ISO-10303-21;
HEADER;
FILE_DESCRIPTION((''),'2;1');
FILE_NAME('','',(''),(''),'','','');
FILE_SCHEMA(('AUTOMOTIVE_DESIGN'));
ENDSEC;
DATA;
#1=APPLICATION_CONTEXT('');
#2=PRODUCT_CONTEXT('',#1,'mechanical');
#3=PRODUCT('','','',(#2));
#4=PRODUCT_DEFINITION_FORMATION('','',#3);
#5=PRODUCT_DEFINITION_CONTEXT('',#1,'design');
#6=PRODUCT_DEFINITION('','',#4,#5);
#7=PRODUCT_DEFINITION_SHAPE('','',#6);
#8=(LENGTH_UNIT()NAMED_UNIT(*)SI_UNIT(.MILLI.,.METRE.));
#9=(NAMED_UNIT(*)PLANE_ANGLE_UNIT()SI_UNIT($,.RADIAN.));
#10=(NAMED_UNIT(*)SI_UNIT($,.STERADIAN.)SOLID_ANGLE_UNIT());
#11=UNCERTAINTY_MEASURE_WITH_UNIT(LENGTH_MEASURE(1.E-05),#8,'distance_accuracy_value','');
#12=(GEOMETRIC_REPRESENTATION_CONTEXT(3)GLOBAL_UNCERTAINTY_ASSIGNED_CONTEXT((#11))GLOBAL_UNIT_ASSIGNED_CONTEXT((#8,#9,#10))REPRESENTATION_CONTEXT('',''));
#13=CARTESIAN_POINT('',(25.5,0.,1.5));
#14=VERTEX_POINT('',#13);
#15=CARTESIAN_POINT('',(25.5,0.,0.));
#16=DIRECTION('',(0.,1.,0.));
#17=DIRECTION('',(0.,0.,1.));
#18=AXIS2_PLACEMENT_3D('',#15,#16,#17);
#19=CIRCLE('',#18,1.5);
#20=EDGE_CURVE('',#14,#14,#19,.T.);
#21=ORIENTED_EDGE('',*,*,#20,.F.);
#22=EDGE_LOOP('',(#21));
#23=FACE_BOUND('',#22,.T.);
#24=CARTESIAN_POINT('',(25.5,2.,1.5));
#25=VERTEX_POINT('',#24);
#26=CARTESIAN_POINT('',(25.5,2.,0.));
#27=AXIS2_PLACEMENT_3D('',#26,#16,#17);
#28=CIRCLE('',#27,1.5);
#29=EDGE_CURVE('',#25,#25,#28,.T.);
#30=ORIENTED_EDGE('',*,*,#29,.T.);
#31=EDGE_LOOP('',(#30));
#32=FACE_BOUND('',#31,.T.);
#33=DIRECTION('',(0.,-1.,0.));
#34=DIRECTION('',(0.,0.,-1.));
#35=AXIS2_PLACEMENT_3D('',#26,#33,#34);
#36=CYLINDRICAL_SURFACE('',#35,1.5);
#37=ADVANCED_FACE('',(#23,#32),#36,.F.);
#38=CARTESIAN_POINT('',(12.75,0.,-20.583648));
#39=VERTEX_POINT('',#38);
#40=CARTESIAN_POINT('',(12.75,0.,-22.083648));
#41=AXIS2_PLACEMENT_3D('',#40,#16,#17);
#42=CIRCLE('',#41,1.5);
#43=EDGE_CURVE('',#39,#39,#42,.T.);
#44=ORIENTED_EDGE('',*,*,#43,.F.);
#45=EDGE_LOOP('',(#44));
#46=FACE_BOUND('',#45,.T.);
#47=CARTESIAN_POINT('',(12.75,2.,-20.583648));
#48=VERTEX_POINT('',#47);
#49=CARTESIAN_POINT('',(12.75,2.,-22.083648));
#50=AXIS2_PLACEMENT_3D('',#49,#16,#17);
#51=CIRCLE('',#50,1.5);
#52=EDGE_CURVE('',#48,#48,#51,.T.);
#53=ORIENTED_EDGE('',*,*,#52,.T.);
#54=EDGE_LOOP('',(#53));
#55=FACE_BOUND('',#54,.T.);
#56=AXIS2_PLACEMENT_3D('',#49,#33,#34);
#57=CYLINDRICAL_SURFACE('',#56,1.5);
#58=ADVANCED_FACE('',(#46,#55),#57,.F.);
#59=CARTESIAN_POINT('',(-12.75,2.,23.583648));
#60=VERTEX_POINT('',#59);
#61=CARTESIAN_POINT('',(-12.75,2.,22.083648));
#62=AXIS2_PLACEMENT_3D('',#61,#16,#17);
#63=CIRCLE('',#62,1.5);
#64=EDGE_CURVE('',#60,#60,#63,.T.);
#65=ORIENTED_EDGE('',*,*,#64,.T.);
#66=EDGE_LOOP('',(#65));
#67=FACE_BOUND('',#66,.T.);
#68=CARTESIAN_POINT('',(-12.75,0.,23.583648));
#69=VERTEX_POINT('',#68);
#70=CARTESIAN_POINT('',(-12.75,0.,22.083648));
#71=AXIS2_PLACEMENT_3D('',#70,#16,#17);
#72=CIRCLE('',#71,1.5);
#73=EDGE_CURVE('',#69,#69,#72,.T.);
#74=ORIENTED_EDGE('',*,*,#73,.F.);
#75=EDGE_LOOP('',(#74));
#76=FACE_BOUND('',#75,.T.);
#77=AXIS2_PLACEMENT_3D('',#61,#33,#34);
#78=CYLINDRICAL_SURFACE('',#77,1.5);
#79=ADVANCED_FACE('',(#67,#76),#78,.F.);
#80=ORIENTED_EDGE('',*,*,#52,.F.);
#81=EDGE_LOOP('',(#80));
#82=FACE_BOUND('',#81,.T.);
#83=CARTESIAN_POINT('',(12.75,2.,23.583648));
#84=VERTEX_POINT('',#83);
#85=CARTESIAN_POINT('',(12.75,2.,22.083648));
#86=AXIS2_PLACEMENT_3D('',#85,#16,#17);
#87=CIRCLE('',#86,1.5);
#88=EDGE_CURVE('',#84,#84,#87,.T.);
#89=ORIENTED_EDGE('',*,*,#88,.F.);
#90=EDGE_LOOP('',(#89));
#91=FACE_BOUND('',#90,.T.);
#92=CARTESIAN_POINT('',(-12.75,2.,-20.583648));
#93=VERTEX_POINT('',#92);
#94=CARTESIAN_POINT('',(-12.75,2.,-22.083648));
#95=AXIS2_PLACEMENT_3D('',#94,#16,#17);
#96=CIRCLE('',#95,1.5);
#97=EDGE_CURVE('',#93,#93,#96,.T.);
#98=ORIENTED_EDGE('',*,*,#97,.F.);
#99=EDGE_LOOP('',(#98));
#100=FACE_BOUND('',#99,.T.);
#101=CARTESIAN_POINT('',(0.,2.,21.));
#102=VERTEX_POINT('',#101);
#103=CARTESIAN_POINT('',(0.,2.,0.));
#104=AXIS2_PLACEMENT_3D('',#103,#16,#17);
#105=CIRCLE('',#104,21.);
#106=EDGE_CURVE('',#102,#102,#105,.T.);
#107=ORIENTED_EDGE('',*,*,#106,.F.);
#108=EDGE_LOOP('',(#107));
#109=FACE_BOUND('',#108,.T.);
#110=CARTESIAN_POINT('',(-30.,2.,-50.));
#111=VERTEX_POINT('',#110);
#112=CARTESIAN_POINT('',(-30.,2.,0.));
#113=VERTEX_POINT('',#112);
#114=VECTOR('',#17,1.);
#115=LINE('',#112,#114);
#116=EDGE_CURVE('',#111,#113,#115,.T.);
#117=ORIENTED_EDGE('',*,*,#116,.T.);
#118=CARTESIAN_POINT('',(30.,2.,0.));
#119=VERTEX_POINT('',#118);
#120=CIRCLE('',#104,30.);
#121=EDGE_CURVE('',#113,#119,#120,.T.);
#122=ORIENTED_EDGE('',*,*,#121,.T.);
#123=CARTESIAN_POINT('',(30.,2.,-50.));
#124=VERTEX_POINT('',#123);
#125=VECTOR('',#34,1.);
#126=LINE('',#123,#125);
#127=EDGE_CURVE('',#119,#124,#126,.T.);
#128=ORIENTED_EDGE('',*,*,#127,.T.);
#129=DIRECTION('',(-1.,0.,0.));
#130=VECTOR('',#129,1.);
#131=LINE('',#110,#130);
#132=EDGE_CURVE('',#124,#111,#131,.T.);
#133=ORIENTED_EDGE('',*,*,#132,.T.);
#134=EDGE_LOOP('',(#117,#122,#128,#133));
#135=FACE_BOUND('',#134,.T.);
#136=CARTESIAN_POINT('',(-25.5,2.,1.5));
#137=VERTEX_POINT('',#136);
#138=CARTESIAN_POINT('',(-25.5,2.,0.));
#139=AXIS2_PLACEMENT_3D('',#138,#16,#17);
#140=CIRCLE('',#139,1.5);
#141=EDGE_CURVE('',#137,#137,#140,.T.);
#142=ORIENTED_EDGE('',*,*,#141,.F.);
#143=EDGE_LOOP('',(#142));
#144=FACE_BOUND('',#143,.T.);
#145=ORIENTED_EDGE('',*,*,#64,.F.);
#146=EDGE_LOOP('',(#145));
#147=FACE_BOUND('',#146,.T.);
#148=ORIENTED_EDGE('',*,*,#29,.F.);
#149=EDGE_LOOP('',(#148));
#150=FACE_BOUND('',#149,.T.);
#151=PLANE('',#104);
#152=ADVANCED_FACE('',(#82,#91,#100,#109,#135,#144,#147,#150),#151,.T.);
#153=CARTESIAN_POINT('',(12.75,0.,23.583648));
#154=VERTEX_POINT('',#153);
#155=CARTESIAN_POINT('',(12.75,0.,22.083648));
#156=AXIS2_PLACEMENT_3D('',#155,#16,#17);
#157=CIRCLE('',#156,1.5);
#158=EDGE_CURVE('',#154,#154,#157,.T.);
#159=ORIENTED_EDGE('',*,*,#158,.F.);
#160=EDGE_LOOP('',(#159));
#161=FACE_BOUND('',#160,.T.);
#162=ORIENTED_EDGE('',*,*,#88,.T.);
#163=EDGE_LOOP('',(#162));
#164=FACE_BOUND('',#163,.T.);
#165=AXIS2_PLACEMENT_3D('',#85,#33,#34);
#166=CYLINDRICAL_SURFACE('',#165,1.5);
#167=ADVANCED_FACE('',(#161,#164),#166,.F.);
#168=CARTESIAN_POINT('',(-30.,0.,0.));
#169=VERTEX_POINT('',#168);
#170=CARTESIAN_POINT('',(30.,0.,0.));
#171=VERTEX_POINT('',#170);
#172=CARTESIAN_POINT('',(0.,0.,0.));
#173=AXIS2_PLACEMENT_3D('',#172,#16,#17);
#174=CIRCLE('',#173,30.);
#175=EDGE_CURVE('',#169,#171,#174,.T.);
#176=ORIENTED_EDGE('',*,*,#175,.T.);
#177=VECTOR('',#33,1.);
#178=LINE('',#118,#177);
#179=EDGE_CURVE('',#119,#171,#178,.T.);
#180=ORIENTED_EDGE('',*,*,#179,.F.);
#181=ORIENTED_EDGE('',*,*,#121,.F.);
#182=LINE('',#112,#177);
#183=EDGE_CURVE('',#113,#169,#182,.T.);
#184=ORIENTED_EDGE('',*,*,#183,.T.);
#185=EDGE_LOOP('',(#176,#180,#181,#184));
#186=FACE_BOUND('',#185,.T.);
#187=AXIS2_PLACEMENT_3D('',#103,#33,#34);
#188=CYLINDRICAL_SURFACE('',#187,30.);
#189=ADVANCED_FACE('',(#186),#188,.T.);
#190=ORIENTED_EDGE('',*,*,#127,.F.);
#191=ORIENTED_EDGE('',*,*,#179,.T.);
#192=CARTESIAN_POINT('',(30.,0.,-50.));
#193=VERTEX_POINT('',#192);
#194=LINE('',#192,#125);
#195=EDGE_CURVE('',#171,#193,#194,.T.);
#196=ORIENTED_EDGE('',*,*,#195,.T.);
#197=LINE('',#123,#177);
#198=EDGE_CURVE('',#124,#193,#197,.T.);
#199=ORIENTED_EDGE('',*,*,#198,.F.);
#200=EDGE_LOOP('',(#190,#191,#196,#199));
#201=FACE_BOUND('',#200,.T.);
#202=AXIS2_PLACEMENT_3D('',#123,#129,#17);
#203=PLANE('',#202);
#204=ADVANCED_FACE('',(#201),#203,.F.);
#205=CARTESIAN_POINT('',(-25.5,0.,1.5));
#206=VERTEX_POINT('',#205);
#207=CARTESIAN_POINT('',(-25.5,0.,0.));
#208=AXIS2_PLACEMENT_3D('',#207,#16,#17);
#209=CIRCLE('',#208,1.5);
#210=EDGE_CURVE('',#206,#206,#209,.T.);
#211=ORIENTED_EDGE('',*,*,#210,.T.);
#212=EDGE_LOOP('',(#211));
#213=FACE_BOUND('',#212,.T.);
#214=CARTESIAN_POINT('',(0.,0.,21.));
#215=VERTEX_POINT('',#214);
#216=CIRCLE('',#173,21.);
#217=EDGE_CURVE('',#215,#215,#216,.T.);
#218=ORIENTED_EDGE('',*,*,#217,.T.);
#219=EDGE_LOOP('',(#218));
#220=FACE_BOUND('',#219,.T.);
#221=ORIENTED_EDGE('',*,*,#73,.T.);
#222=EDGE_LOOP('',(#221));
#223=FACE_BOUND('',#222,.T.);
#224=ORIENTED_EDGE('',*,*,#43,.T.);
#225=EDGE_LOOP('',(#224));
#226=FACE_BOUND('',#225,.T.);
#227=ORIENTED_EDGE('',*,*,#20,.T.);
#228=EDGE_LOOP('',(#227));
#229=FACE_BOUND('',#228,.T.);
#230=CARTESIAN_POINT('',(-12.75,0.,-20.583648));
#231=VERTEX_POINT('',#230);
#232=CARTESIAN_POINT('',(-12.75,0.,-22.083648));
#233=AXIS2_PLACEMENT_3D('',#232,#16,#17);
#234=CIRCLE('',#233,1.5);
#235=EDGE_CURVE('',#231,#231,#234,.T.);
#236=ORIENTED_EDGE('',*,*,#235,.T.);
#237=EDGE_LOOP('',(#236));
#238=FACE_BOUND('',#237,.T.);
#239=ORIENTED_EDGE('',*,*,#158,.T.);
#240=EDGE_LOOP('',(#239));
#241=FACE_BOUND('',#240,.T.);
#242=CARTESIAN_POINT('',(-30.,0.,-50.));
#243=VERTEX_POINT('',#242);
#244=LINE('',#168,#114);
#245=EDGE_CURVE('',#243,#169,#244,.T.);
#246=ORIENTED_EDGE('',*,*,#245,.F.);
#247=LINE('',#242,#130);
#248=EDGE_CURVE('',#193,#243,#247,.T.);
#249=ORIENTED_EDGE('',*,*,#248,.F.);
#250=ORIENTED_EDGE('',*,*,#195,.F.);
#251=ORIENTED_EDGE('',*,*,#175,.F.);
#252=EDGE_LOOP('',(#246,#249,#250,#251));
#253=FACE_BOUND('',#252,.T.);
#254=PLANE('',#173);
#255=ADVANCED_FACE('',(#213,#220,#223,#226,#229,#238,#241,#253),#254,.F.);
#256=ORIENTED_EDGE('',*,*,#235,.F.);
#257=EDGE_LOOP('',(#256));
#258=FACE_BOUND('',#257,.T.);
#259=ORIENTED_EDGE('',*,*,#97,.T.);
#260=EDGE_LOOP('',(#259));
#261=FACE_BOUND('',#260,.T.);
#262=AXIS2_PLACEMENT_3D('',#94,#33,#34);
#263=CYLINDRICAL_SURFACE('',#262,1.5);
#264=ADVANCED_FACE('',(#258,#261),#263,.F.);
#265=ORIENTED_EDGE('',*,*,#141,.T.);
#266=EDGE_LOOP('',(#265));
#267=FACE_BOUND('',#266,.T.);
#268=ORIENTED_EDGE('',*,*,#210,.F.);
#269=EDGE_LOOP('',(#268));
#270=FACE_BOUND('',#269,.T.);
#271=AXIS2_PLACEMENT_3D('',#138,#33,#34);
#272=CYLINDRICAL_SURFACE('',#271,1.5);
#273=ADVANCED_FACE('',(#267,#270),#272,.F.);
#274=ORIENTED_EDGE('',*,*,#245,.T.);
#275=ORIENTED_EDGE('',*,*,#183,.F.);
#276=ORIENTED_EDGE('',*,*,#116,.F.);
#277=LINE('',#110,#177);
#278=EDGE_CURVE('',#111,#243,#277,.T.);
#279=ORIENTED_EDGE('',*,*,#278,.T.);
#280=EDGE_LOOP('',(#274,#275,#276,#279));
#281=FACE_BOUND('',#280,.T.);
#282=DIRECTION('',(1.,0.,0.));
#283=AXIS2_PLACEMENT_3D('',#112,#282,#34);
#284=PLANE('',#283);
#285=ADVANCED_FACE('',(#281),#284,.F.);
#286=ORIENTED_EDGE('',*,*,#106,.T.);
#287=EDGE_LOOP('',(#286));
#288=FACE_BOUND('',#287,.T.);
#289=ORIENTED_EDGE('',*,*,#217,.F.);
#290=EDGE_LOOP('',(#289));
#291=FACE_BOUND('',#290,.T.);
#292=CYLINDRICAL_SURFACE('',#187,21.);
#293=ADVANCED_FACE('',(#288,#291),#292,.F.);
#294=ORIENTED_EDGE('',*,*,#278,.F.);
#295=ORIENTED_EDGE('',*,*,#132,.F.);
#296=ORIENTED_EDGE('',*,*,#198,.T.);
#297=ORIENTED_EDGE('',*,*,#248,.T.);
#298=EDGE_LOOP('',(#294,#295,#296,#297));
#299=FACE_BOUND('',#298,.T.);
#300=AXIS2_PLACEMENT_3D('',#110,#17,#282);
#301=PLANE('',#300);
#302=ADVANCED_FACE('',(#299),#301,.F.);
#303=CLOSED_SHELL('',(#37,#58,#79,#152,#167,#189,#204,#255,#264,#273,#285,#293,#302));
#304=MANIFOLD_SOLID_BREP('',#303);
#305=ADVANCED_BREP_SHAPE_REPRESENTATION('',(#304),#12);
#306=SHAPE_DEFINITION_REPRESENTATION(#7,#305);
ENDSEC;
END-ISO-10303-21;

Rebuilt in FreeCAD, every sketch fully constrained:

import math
import FreeCAD as App
import Part
import Sketcher
from FreeCAD import Vector
Q = App.Units.Quantity

doc = App.newDocument("Part")
body = doc.addObject("PartDesign::Body", "Body")

# Sketch on XZ plane
sketch1 = body.newObject("Sketcher::SketchObject", "Sketch")
sketch1.AttachmentSupport = (doc.getObject("XZ_Plane"), [""])
sketch1.MapMode = "FlatFace"
sketch1.addGeometry([
    Part.LineSegment(Vector(-30, -50, 0), Vector(-30, 0, 0)),  # 0
    Part.ArcOfCircle(Part.Circle(Vector(0, 0, 0), Vector(0, 0, 1), 30), math.radians(0), math.radians(180)),  # 1
    Part.LineSegment(Vector(30, 0, 0), Vector(30, -50, 0)),  # 2
    Part.LineSegment(Vector(30, -50, 0), Vector(-30, -50, 0)),  # 3
    Part.Circle(Vector(12.8, 22.1, 0), Vector(0, 0, 1), 1.5),  # 4
    Part.Circle(Vector(-12.8, 22.1, 0), Vector(0, 0, 1), 1.5),  # 5
    Part.Circle(Vector(0, 0, 0), Vector(0, 0, 1), 21),  # 6
    Part.Circle(Vector(25.5, 0, 0), Vector(0, 0, 1), 1.5),  # 7
    Part.Circle(Vector(12.8, -22.1, 0), Vector(0, 0, 1), 1.5),  # 8
    Part.Circle(Vector(-25.5, 0, 0), Vector(0, 0, 1), 1.5),  # 9
    Part.Circle(Vector(-12.8, -22.1, 0), Vector(0, 0, 1), 1.5),  # 10
], False)
sketch1.addConstraint([
    Sketcher.Constraint("Tangent", 0, 2, 1, 2),
    Sketcher.Constraint("Tangent", 1, 1, 2, 1),
    Sketcher.Constraint("Coincident", 2, 2, 3, 1),
    Sketcher.Constraint("Coincident", 3, 2, 0, 1),
    Sketcher.Constraint("Vertical", 0),
    Sketcher.Constraint("Vertical", 2),
    Sketcher.Constraint("Horizontal", 3),
    Sketcher.Constraint("Coincident", 1, 3, -1, 1),
    Sketcher.Constraint("Coincident", 6, 3, -1, 1),
    Sketcher.Constraint("Equal", 4, 5),
    Sketcher.Constraint("Equal", 5, 7),
    Sketcher.Constraint("Equal", 7, 8),
    Sketcher.Constraint("Equal", 8, 9),
    Sketcher.Constraint("Equal", 9, 10),
    Sketcher.Constraint("Symmetric", 5, 3, 8, 3, -1, 1),
    Sketcher.Constraint("Symmetric", 7, 3, 9, 3, -1, 1),
    Sketcher.Constraint("Symmetric", 4, 3, 10, 3, -1, 1),
    Sketcher.Constraint("Symmetric", 4, 3, 5, 3, -2),
    Sketcher.Constraint("PointOnObject", 7, 3, -1),
    Sketcher.Constraint("Diameter", 4, Q("3 mm")),
    Sketcher.Constraint("Diameter", 6, Q("42 mm")),
    Sketcher.Constraint("Radius", 1, Q("30 mm")),
    Sketcher.Constraint("DistanceY", 0, 1, 0, 2, Q("50 mm")),
    Sketcher.Constraint("DistanceX", -1, 1, 7, 3, Q("25.5 mm")),
    Sketcher.Constraint("DistanceX", 5, 3, 4, 3, Q("25.5 mm")),
    Sketcher.Constraint("DistanceY", -1, 1, 4, 3, Q("22.083648 mm")),
])
pad1 = body.newObject("PartDesign::Pad", "Pad")
pad1.Profile = sketch1
pad1.Length = 2
pad1.Reversed = True

doc.recompute()
